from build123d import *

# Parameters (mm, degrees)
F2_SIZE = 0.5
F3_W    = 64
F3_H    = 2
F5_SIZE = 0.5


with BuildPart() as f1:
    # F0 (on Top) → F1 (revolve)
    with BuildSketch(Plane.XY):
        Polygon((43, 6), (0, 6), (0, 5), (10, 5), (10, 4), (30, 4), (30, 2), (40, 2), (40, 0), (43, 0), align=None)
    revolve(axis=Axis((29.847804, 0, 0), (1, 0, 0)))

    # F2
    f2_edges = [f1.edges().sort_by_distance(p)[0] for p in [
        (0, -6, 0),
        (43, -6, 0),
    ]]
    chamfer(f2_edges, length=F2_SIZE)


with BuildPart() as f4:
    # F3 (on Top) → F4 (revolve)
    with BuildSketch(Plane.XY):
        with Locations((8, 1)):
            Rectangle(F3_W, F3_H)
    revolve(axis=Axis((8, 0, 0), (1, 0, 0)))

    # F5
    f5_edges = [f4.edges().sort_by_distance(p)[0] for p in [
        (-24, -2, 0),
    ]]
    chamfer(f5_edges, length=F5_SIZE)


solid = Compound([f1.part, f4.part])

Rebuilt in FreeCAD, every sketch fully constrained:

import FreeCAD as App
import Part
import Sketcher
from FreeCAD import Vector


def edges_at(feature, points):
    """Names of the edges that pass closest to the given points."""
    edges = feature.Shape.Edges
    near = lambda p: min(range(len(edges)), key=lambda i: edges[i].distToShape(Part.Vertex(*p))[0])
    return sorted({f"Edge{near(p) + 1}" for p in points})


def add_polygon(sketch, points):
    """Adds a closed chain of lines whose ends are joined by coincident constraints."""
    first, n = sketch.GeometryCount, len(points)
    for a, b in zip(points, points[1:] + points[:1]):
        sketch.addGeometry(Part.LineSegment(App.Vector(*a, 0), App.Vector(*b, 0)), False)
    for i in range(n):
        sketch.addConstraint(Sketcher.Constraint("Coincident", first + i, 2, first + (i + 1) % n, 1))

doc = App.newDocument("Part")
params = doc.addObject("Spreadsheet::Sheet", "Params")
for row, (alias, value) in enumerate([
    ("sketch1_width", "43 mm"),
    ("sketch1_width2", "10 mm"),
    ("sketch1_width3", "20 mm"),
    ("sketch1_height", "1 mm"),
    ("sketch1_height2", "2 mm"),
    ("revolution_angle", "360 deg"),
    ("chamfer_size", "0.5 mm"),
    ("sketch2_width", "64 mm"),
    ("sketch2_height", "2 mm"),
    ("revolution2_angle", "360 deg"),
    ("chamfer2_size", "0.5 mm"),
], start=1):
    params.set(f"A{row}", alias)
    params.set(f"B{row}", "=" + value)
    params.setAlias(f"B{row}", alias)

body = doc.addObject("PartDesign::Body", "Body")

# Sketch on XY plane
sketch1 = doc.addObject("Sketcher::SketchObject", "Sketch")
body.addObject(sketch1)
sketch1.AttachmentSupport = (doc.XY_Plane, [""])
sketch1.MapMode = "FlatFace"
add_polygon(sketch1, [(43, 6), (0, 6), (0, 5), (10, 5), (10, 4), (30, 4), (30, 2), (40, 2), (40, 0), (43, 0)])  # lines 0-9
sketch1.addConstraint([
    Sketcher.Constraint("Horizontal", 0),
    Sketcher.Constraint("Vertical", 1),
    Sketcher.Constraint("Horizontal", 2),
    Sketcher.Constraint("Vertical", 3),
    Sketcher.Constraint("Horizontal", 4),
    Sketcher.Constraint("Vertical", 5),
    Sketcher.Constraint("Horizontal", 6),
    Sketcher.Constraint("Vertical", 7),
    Sketcher.Constraint("Horizontal", 8),
    Sketcher.Constraint("Vertical", 9),
    Sketcher.Constraint("PointOnObject", 0, 2, -2),
    Sketcher.Constraint("PointOnObject", 7, 2, -1),
    Sketcher.Constraint("Equal", 2, 6),
    Sketcher.Constraint("Equal", 1, 3),
    Sketcher.Constraint("Equal", 5, 7),
    Sketcher.Constraint("DistanceX", 0, 2, 0, 1, 43.0),
    Sketcher.Constraint("DistanceX", 2, 1, 2, 2, 10.0),
    Sketcher.Constraint("DistanceX", 4, 1, 4, 2, 20.0),
    Sketcher.Constraint("DistanceY", 1, 2, 1, 1, 1.0),
    Sketcher.Constraint("DistanceY", 5, 2, 5, 1, 2.0),
])
sketch1.setExpression("Constraints[25]", "Params.sketch1_width")
sketch1.setExpression("Constraints[26]", "Params.sketch1_width2")
sketch1.setExpression("Constraints[27]", "Params.sketch1_width3")
sketch1.setExpression("Constraints[28]", "Params.sketch1_height")
sketch1.setExpression("Constraints[29]", "Params.sketch1_height2")
revolution = doc.addObject("PartDesign::Revolution", "Revolution")
body.addObject(revolution)
revolution.Profile = sketch1
revolution.ReferenceAxis = (sketch1, ["H_Axis"])
revolution.setExpression("Angle", "Params.revolution_angle")
doc.recompute()

chamfer = doc.addObject("PartDesign::Chamfer", "Chamfer")
body.addObject(chamfer)
chamfer.Base = (revolution, edges_at(revolution, [(0, -6, 0), (43, -6, 0)]))
chamfer.setExpression("Size", "Params.chamfer_size")
body2 = doc.addObject("PartDesign::Body", "Body001")

# Sketch on XY plane
sketch2 = doc.addObject("Sketcher::SketchObject", "Sketch001")
body2.addObject(sketch2)
sketch2.AttachmentSupport = (doc.getObject("XY_Plane001"), [""])
sketch2.MapMode = "FlatFace"
add_polygon(sketch2, [(-24, 2), (-24, 0), (40, 0), (40, 2)])  # lines 0-3
sketch2.addConstraint([
    Sketcher.Constraint("Vertical", 0),
    Sketcher.Constraint("Horizontal", 1),
    Sketcher.Constraint("Vertical", 2),
    Sketcher.Constraint("Horizontal", 3),
    Sketcher.Constraint("PointOnObject", 0, 2, -1),
    Sketcher.Constraint("DistanceX", 1, 1, 1, 2, 64.0),
    Sketcher.Constraint("DistanceY", 0, 2, 0, 1, 2.0),
    Sketcher.Constraint("DistanceX", 0, 2, -1, 1, 24.0),
])
sketch2.setExpression("Constraints[9]", "Params.sketch2_width")
sketch2.setExpression("Constraints[10]", "Params.sketch2_height")
revolution2 = doc.addObject("PartDesign::Revolution", "Revolution001")
body2.addObject(revolution2)
revolution2.Profile = sketch2
revolution2.ReferenceAxis = (sketch2, ["H_Axis"])
revolution2.setExpression("Angle", "Params.revolution2_angle")
doc.recompute()

chamfer2 = doc.addObject("PartDesign::Chamfer", "Chamfer001")
body2.addObject(chamfer2)
chamfer2.Base = (revolution2, edges_at(revolution2, [(-24, -2, 0)]))
chamfer2.setExpression("Size", "Params.chamfer2_size")

doc.recompute()
